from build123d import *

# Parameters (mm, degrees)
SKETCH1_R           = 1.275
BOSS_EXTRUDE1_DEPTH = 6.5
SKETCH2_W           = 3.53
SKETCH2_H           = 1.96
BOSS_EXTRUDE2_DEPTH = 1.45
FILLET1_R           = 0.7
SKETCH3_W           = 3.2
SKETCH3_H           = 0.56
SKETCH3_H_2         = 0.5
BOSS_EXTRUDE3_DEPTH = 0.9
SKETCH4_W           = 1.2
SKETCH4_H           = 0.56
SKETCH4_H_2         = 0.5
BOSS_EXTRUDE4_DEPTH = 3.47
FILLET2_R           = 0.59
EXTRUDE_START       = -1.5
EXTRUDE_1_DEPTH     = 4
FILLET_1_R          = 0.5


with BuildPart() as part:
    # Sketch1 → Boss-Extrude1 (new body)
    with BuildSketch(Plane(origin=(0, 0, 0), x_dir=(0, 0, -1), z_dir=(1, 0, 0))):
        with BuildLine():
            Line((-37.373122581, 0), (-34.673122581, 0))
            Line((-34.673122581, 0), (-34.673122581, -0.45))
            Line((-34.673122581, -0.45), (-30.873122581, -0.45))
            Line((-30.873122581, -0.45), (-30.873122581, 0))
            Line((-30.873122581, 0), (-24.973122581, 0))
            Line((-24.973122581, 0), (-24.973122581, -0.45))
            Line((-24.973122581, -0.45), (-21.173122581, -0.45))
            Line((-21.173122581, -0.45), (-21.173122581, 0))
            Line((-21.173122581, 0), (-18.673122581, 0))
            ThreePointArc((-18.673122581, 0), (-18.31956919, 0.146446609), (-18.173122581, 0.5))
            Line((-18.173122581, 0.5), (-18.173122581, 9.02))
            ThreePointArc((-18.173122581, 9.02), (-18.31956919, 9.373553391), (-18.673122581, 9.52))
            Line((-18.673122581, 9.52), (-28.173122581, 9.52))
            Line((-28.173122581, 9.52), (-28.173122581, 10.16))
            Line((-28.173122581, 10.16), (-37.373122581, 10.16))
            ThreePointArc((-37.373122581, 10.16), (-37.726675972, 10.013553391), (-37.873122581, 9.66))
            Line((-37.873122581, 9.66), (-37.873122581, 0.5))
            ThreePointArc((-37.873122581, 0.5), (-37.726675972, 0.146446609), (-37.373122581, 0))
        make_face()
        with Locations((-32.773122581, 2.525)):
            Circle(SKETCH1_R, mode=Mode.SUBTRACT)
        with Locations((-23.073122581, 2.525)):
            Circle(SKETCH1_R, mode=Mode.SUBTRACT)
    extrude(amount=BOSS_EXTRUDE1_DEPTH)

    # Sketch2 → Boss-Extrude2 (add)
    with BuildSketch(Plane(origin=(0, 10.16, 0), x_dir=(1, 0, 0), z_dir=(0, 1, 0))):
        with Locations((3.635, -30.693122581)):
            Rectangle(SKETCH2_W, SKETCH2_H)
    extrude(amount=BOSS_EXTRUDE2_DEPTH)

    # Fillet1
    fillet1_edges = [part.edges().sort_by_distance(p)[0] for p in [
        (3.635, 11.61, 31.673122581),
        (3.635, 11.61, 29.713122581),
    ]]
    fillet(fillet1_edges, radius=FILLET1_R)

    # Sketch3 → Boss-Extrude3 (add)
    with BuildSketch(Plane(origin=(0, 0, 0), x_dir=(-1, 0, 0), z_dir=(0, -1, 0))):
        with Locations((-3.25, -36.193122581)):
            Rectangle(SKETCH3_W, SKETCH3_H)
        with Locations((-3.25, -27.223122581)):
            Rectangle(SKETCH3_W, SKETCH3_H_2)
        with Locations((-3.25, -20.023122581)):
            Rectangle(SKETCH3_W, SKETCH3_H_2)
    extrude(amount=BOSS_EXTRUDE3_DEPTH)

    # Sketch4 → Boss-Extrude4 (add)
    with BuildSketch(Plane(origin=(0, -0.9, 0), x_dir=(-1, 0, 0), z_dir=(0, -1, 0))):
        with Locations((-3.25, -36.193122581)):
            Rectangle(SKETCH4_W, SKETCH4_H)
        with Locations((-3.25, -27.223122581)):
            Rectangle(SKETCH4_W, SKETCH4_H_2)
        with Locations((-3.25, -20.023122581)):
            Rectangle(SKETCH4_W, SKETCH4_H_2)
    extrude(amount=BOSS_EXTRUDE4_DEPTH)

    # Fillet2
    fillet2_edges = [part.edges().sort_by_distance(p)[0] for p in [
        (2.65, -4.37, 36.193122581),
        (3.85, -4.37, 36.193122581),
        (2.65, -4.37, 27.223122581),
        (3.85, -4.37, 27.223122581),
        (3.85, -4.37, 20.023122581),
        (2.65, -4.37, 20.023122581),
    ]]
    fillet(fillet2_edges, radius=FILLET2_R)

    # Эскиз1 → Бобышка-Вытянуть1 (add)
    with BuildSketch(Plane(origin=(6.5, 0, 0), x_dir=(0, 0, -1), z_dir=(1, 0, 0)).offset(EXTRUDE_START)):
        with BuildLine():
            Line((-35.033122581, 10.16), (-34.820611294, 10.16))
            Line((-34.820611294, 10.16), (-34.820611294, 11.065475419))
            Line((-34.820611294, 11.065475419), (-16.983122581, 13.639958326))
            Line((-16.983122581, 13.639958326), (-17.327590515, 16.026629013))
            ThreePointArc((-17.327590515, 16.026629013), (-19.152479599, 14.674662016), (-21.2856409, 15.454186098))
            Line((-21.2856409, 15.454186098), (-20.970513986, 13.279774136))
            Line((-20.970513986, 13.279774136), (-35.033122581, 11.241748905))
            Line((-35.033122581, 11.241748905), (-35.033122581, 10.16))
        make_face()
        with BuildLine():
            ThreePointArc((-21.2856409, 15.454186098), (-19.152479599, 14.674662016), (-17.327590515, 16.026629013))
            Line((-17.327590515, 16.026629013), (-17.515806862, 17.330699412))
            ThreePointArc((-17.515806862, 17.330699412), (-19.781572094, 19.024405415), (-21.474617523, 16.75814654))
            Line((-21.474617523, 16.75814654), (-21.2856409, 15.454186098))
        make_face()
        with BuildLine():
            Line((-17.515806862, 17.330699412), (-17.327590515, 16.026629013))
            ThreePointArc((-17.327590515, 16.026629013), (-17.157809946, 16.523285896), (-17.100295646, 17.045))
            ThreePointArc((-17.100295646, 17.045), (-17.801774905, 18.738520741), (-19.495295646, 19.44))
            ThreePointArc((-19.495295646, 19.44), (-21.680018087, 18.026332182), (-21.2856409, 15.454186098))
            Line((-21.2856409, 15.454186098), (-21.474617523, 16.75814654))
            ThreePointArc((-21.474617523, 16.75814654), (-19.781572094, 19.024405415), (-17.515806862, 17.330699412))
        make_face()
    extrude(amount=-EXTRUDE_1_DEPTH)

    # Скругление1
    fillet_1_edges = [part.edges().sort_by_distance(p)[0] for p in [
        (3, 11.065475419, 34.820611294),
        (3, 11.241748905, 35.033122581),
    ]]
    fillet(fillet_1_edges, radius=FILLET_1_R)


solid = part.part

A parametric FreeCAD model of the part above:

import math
import FreeCAD as App
import Part
import Sketcher
from FreeCAD import Vector


def edges_at(feature, points):
    """Names of the edges that pass closest to the given points."""
    edges = feature.Shape.Edges
    near = lambda p: min(range(len(edges)), key=lambda i: edges[i].distToShape(Part.Vertex(*p))[0])
    return sorted({f"Edge{near(p) + 1}" for p in points})

doc = App.newDocument("Part")
body = doc.addObject("PartDesign::Body", "Body")

sketch1 = body.newObject("Sketcher::SketchObject", "Sketch")
sketch1.AttachmentSupport = (doc.getObject("YZ_Plane"), [""])
sketch1.MapMode = "FlatFace"
sketch1.addGeometry([
    Part.LineSegment(Vector(0, 37.373123, 0), Vector(0, 34.673123, 0)),
    Part.LineSegment(Vector(0, 34.673123, 0), Vector(-0.45, 34.673123, 0)),
    Part.LineSegment(Vector(-0.45, 34.673123, 0), Vector(-0.45, 30.873123, 0)),
    Part.LineSegment(Vector(-0.45, 30.873123, 0), Vector(0, 30.873123, 0)),
    Part.LineSegment(Vector(0, 30.873123, 0), Vector(0, 24.973123, 0)),
    Part.LineSegment(Vector(0, 24.973123, 0), Vector(-0.45, 24.973123, 0)),
    Part.LineSegment(Vector(-0.45, 24.973123, 0), Vector(-0.45, 21.173123, 0)),
    Part.LineSegment(Vector(-0.45, 21.173123, 0), Vector(0, 21.173123, 0)),
    Part.LineSegment(Vector(0, 21.173123, 0), Vector(0, 18.673123, 0)),
    Part.ArcOfCircle(Part.Circle(Vector(0.5, 18.673123, 0), Vector(0, 0, 1), 0.5), math.radians(180), math.radians(270)),
    Part.LineSegment(Vector(0.5, 18.173123, 0), Vector(9.02, 18.173123, 0)),
    Part.ArcOfCircle(Part.Circle(Vector(9.02, 18.673123, 0), Vector(0, 0, 1), 0.5), math.radians(-90), math.radians(0)),
    Part.LineSegment(Vector(9.52, 18.673123, 0), Vector(9.52, 28.173123, 0)),
    Part.LineSegment(Vector(9.52, 28.173123, 0), Vector(10.16, 28.173123, 0)),
    Part.LineSegment(Vector(10.16, 28.173123, 0), Vector(10.16, 37.373123, 0)),
    Part.ArcOfCircle(Part.Circle(Vector(9.66, 37.373123, 0), Vector(0, 0, 1), 0.5), math.radians(0), math.radians(90)),
    Part.LineSegment(Vector(9.66, 37.873123, 0), Vector(0.5, 37.873123, 0)),
    Part.ArcOfCircle(Part.Circle(Vector(0.5, 37.373123, 0), Vector(0, 0, 1), 0.5), math.radians(90), math.radians(180)),
    Part.Circle(Vector(2.525, 32.773123, 0), Vector(0, 0, 1), 1.275),
    Part.Circle(Vector(2.525, 23.073123, 0), Vector(0, 0, 1), 1.275),
], False)
sketch1.addConstraint([
    Sketcher.Constraint("Coincident", 0, 2, 1, 1),
    Sketcher.Constraint("Coincident", 1, 2, 2, 1),
    Sketcher.Constraint("Coincident", 2, 2, 3, 1),
    Sketcher.Constraint("Coincident", 3, 2, 4, 1),
    Sketcher.Constraint("Coincident", 4, 2, 5, 1),
    Sketcher.Constraint("Coincident", 5, 2, 6, 1),
    Sketcher.Constraint("Coincident", 6, 2, 7, 1),
    Sketcher.Constraint("Coincident", 7, 2, 8, 1),
    Sketcher.Constraint("Tangent", 8, 2, 9, 1),
    Sketcher.Constraint("Tangent", 9, 2, 10, 1),
    Sketcher.Constraint("Tangent", 10, 2, 11, 1),
    Sketcher.Constraint("Tangent", 11, 2, 12, 1),
    Sketcher.Constraint("Coincident", 12, 2, 13, 1),
    Sketcher.Constraint("Coincident", 13, 2, 14, 1),
    Sketcher.Constraint("Tangent", 14, 2, 15, 1),
    Sketcher.Constraint("Tangent", 15, 2, 16, 1),
    Sketcher.Constraint("Tangent", 16, 2, 17, 1),
    Sketcher.Constraint("Tangent", 17, 2, 0, 1),
    Sketcher.Constraint("Vertical", 0),
    Sketcher.Constraint("Horizontal", 1),
    Sketcher.Constraint("Vertical", 2),
    Sketcher.Constraint("Horizontal", 3),
    Sketcher.Constraint("Vertical", 4),
    Sketcher.Constraint("Horizontal", 5),
    Sketcher.Constraint("Vertical", 6),
    Sketcher.Constraint("Horizontal", 7),
    Sketcher.Constraint("Vertical", 8),
    Sketcher.Constraint("Horizontal", 10),
    Sketcher.Constraint("Vertical", 12),
    Sketcher.Constraint("Horizontal", 13),
    Sketcher.Constraint("Vertical", 14),
    Sketcher.Constraint("Horizontal", 16),
    Sketcher.Constraint("Equal", 9, 11),
    Sketcher.Constraint("Equal", 11, 15),
    Sketcher.Constraint("Equal", 15, 17),
    Sketcher.Constraint("Equal", 18, 19),
    Sketcher.Constraint("PointOnObject", 0, 2, -2),
    Sketcher.Constraint("PointOnObject", 3, 2, -2),
    Sketcher.Constraint("PointOnObject", 7, 2, -2),
    Sketcher.Constraint("Vertical", 18, 3, 19, 3),
    Sketcher.Constraint("Vertical", 2, 2, 5, 2),
    Sketcher.Constraint("Equal", 2, 6),
    Sketcher.Constraint("Radius", 9, 0.5),
    Sketcher.Constraint("Diameter", 18, 2.55),
    Sketcher.Constraint("DistanceY", 0, 2, 0, 1, 2.7),
    Sketcher.Constraint("DistanceY", 2, 2, 2, 1, 3.8),
    Sketcher.Constraint("DistanceY", 4, 2, 4, 1, 5.9),
    Sketcher.Constraint("DistanceY", 8, 2, 8, 1, 2.5),
    Sketcher.Constraint("DistanceY", 12, 1, 12, 2, 9.5),
    Sketcher.Constraint("DistanceX", 1, 2, 1, 1, 0.45),
    Sketcher.Constraint("DistanceX", 10, 1, 10, 2, 8.52),
    Sketcher.Constraint("DistanceX", 13, 1, 13, 2, 0.64),
    Sketcher.Constraint("DistanceY", 18, 3, 17, 3, 4.6),
    Sketcher.Constraint("DistanceY", 9, 3, 19, 3, 4.4),
    Sketcher.Constraint("DistanceX", -1, 1, 18, 3, 2.525),
    Sketcher.Constraint("DistanceY", -1, 1, 9, 3, 18.673123),
])
pad1 = body.newObject("PartDesign::Pad", "Pad")
pad1.Profile = sketch1
pad1.Length = 6.5

sketch2 = body.newObject("Sketcher::SketchObject", "Sketch001")
sketch2.AttachmentSupport = (doc.getObject("XZ_Plane"), [""])
sketch2.MapMode = "FlatFace"
sketch2.AttachmentOffset = App.Placement(Vector(0, 0, -10.16), App.Rotation())
sketch2.addGeometry([
    Part.LineSegment(Vector(1.87, 29.713123, 0), Vector(1.87, 31.673123, 0)),
    Part.LineSegment(Vector(1.87, 31.673123, 0), Vector(5.4, 31.673123, 0)),
    Part.LineSegment(Vector(5.4, 31.673123, 0), Vector(5.4, 29.713123, 0)),
    Part.LineSegment(Vector(5.4, 29.713123, 0), Vector(1.87, 29.713123, 0)),
], False)
sketch2.addConstraint([
    Sketcher.Constraint("Coincident", 0, 2, 1, 1),
    Sketcher.Constraint("Coincident", 1, 2, 2, 1),
    Sketcher.Constraint("Coincident", 2, 2, 3, 1),
    Sketcher.Constraint("Coincident", 3, 2, 0, 1),
    Sketcher.Constraint("Vertical", 0),
    Sketcher.Constraint("Horizontal", 1),
    Sketcher.Constraint("Vertical", 2),
    Sketcher.Constraint("Horizontal", 3),
    Sketcher.Constraint("DistanceX", 1, 1, 1, 2, 3.53),
    Sketcher.Constraint("DistanceY", 0, 1, 0, 2, 1.96),
    Sketcher.Constraint("DistanceX", -1, 1, 1, 2, 5.4),
    Sketcher.Constraint("DistanceY", -1, 1, 0, 2, 31.673123),
])
pad2 = body.newObject("PartDesign::Pad", "Pad001")
pad2.Profile = sketch2
pad2.Length = 1.45
pad2.Reversed = True
doc.recompute()

fillet = body.newObject("PartDesign::Fillet", "Fillet")
fillet.Base = (pad2, edges_at(pad2, [(3.635, 11.61, 31.673), (3.635, 11.61, 29.713)]))
fillet.Radius = 0.7

sketch3 = body.newObject("Sketcher::SketchObject", "Sketch002")
sketch3.AttachmentSupport = (doc.getObject("XZ_Plane"), [""])
sketch3.MapMode = "FlatFace"
sketch3.addGeometry([
    Part.LineSegment(Vector(4.85, 35.913123, 0), Vector(4.85, 36.473123, 0)),
    Part.LineSegment(Vector(4.85, 36.473123, 0), Vector(1.65, 36.473123, 0)),
    Part.LineSegment(Vector(1.65, 36.473123, 0), Vector(1.65, 35.913123, 0)),
    Part.LineSegment(Vector(1.65, 35.913123, 0), Vector(4.85, 35.913123, 0)),
    Part.LineSegment(Vector(4.85, 26.973123, 0), Vector(4.85, 27.473123, 0)),
    Part.LineSegment(Vector(4.85, 27.473123, 0), Vector(1.65, 27.473123, 0)),
    Part.LineSegment(Vector(1.65, 27.473123, 0), Vector(1.65, 26.973123, 0)),
    Part.LineSegment(Vector(1.65, 26.973123, 0), Vector(4.85, 26.973123, 0)),
    Part.LineSegment(Vector(4.85, 19.773123, 0), Vector(4.85, 20.273123, 0)),
    Part.LineSegment(Vector(4.85, 20.273123, 0), Vector(1.65, 20.273123, 0)),
    Part.LineSegment(Vector(1.65, 20.273123, 0), Vector(1.65, 19.773123, 0)),
    Part.LineSegment(Vector(1.65, 19.773123, 0), Vector(4.85, 19.773123, 0)),
], False)
sketch3.addConstraint([
    Sketcher.Constraint("Coincident", 0, 2, 1, 1),
    Sketcher.Constraint("Coincident", 1, 2, 2, 1),
    Sketcher.Constraint("Coincident", 2, 2, 3, 1),
    Sketcher.Constraint("Coincident", 3, 2, 0, 1),
    Sketcher.Constraint("Coincident", 4, 2, 5, 1),
    Sketcher.Constraint("Coincident", 5, 2, 6, 1),
    Sketcher.Constraint("Coincident", 6, 2, 7, 1),
    Sketcher.Constraint("Coincident", 7, 2, 4, 1),
    Sketcher.Constraint("Coincident", 8, 2, 9, 1),
    Sketcher.Constraint("Coincident", 9, 2, 10, 1),
    Sketcher.Constraint("Coincident", 10, 2, 11, 1),
    Sketcher.Constraint("Coincident", 11, 2, 8, 1),
    Sketcher.Constraint("Vertical", 0),
    Sketcher.Constraint("Horizontal", 1),
    Sketcher.Constraint("Vertical", 2),
    Sketcher.Constraint("Horizontal", 3),
    Sketcher.Constraint("Vertical", 4),
    Sketcher.Constraint("Horizontal", 5),
    Sketcher.Constraint("Vertical", 6),
    Sketcher.Constraint("Horizontal", 7),
    Sketcher.Constraint("Vertical", 8),
    Sketcher.Constraint("Horizontal", 9),
    Sketcher.Constraint("Vertical", 10),
    Sketcher.Constraint("Horizontal", 11),
    Sketcher.Constraint("Vertical", 3, 2, 4, 2),
    Sketcher.Constraint("Vertical", 2, 2, 5, 2),
    Sketcher.Constraint("Vertical", 7, 2, 8, 2),
    Sketcher.Constraint("Vertical", 6, 2, 9, 2),
    Sketcher.Constraint("Equal", 6, 8),
    Sketcher.Constraint("DistanceX", 1, 2, 1, 1, 3.2),
    Sketcher.Constraint("DistanceY", 4, 1, 4, 2, 0.5),
    Sketcher.Constraint("DistanceY", 4, 2, 0, 2, 9.0),
    Sketcher.Constraint("DistanceY", 0, 1, 0, 2, 0.56),
    Sketcher.Constraint("DistanceY", 8, 2, 7, 2, 6.7),
    Sketcher.Constraint("DistanceX", -1, 1, 0, 2, 4.85),
    Sketcher.Constraint("DistanceY", -1, 1, 0, 2, 36.473123),
])
pad3 = body.newObject("PartDesign::Pad", "Pad002")
pad3.Profile = sketch3
pad3.Length = 0.9

sketch4 = body.newObject("Sketcher::SketchObject", "Sketch003")
sketch4.AttachmentSupport = (doc.getObject("XZ_Plane"), [""])
sketch4.MapMode = "FlatFace"
sketch4.AttachmentOffset = App.Placement(Vector(0, 0, 0.9), App.Rotation())
sketch4.addGeometry([
    Part.LineSegment(Vector(3.85, 35.913123, 0), Vector(3.85, 36.473123, 0)),
    Part.LineSegment(Vector(3.85, 36.473123, 0), Vector(2.65, 36.473123, 0)),
    Part.LineSegment(Vector(2.65, 36.473123, 0), Vector(2.65, 35.913123, 0)),
    Part.LineSegment(Vector(2.65, 35.913123, 0), Vector(3.85, 35.913123, 0)),
    Part.LineSegment(Vector(3.85, 26.973123, 0), Vector(3.85, 27.473123, 0)),
    Part.LineSegment(Vector(3.85, 27.473123, 0), Vector(2.65, 27.473123, 0)),
    Part.LineSegment(Vector(2.65, 27.473123, 0), Vector(2.65, 26.973123, 0)),
    Part.LineSegment(Vector(2.65, 26.973123, 0), Vector(3.85, 26.973123, 0)),
    Part.LineSegment(Vector(3.85, 19.773123, 0), Vector(3.85, 20.273123, 0)),
    Part.LineSegment(Vector(3.85, 20.273123, 0), Vector(2.65, 20.273123, 0)),
    Part.LineSegment(Vector(2.65, 20.273123, 0), Vector(2.65, 19.773123, 0)),
    Part.LineSegment(Vector(2.65, 19.773123, 0), Vector(3.85, 19.773123, 0)),
], False)
sketch4.addConstraint([
    Sketcher.Constraint("Coincident", 0, 2, 1, 1),
    Sketcher.Constraint("Coincident", 1, 2, 2, 1),
    Sketcher.Constraint("Coincident", 2, 2, 3, 1),
    Sketcher.Constraint("Coincident", 3, 2, 0, 1),
    Sketcher.Constraint("Coincident", 4, 2, 5, 1),
    Sketcher.Constraint("Coincident", 5, 2, 6, 1),
    Sketcher.Constraint("Coincident", 6, 2, 7, 1),
    Sketcher.Constraint("Coincident", 7, 2, 4, 1),
    Sketcher.Constraint("Coincident", 8, 2, 9, 1),
    Sketcher.Constraint("Coincident", 9, 2, 10, 1),
    Sketcher.Constraint("Coincident", 10, 2, 11, 1),
    Sketcher.Constraint("Coincident", 11, 2, 8, 1),
    Sketcher.Constraint("Vertical", 0),
    Sketcher.Constraint("Horizontal", 1),
    Sketcher.Constraint("Vertical", 2),
    Sketcher.Constraint("Horizontal", 3),
    Sketcher.Constraint("Vertical", 4),
    Sketcher.Constraint("Horizontal", 5),
    Sketcher.Constraint("Vertical", 6),
    Sketcher.Constraint("Horizontal", 7),
    Sketcher.Constraint("Vertical", 8),
    Sketcher.Constraint("Horizontal", 9),
    Sketcher.Constraint("Vertical", 10),
    Sketcher.Constraint("Horizontal", 11),
    Sketcher.Constraint("Vertical", 3, 2, 4, 2),
    Sketcher.Constraint("Vertical", 2, 2, 5, 2),
    Sketcher.Constraint("Vertical", 7, 2, 8, 2),
    Sketcher.Constraint("Vertical", 6, 2, 9, 2),
    Sketcher.Constraint("Equal", 6, 8),
    Sketcher.Constraint("DistanceX", 1, 2, 1, 1, 1.2),
    Sketcher.Constraint("DistanceY", 4, 1, 4, 2, 0.5),
    Sketcher.Constraint("DistanceY", 4, 2, 0, 2, 9.0),
    Sketcher.Constraint("DistanceY", 0, 1, 0, 2, 0.56),
    Sketcher.Constraint("DistanceY", 8, 2, 7, 2, 6.7),
    Sketcher.Constraint("DistanceX", -1, 1, 0, 2, 3.85),
    Sketcher.Constraint("DistanceY", -1, 1, 0, 2, 36.473123),
])
pad4 = body.newObject("PartDesign::Pad", "Pad003")
pad4.Profile = sketch4
pad4.Length = 3.47
doc.recompute()

fillet2 = body.newObject("PartDesign::Fillet", "Fillet001")
fillet2.Base = (pad4, edges_at(pad4, [
    (2.65, -4.37, 36.193),
    (3.85, -4.37, 36.193),
    (2.65, -4.37, 27.223),
    (3.85, -4.37, 27.223),
    (3.85, -4.37, 20.023),
    (2.65, -4.37, 20.023),
]))
fillet2.Radius = 0.59

sketch5 = body.newObject("Sketcher::SketchObject", "Sketch004")
sketch5.AttachmentSupport = (doc.getObject("YZ_Plane"), [""])
sketch5.MapMode = "FlatFace"
sketch5.AttachmentOffset = App.Placement(Vector(0, 0, 5), App.Rotation())
sketch5.addGeometry([
    Part.LineSegment(Vector(13.279774, 20.970514, 0), Vector(11.241749, 35.033123, 0)),
    Part.LineSegment(Vector(11.241749, 35.033123, 0), Vector(10.16, 35.033123, 0)),
    Part.LineSegment(Vector(10.16, 35.033123, 0), Vector(10.16, 34.820611, 0)),
    Part.LineSegment(Vector(10.16, 34.820611, 0), Vector(11.065475, 34.820611, 0)),
    Part.LineSegment(Vector(11.065475, 34.820611, 0), Vector(13.639958, 16.983123, 0)),
    Part.LineSegment(Vector(13.639958, 16.983123, 0), Vector(16.026629, 17.327591, 0)),
    Part.ArcOfCircle(Part.Circle(Vector(17.045, 19.495296, 0), Vector(0, 0, 1), 2.395), math.radians(-115.163773), math.radians(-90)),
    Part.ArcOfCircle(Part.Circle(Vector(17.045, 19.495296, 0), Vector(0, 0, 1), 2.395), math.radians(-90), math.radians(0)),
    Part.ArcOfCircle(Part.Circle(Vector(17.045, 19.495296, 0), Vector(0, 0, 1), 2.395), math.radians(0), math.radians(131.622738)),
    Part.LineSegment(Vector(15.454186, 21.285641, 0), Vector(13.279774, 20.970514, 0)),
], False)
sketch5.addConstraint([
    Sketcher.Constraint("Coincident", 0, 2, 1, 1),
    Sketcher.Constraint("Coincident", 1, 2, 2, 1),
    Sketcher.Constraint("Coincident", 2, 2, 3, 1),
    Sketcher.Constraint("Coincident", 3, 2, 4, 1),
    Sketcher.Constraint("Coincident", 4, 2, 5, 1),
    Sketcher.Constraint("Coincident", 5, 2, 6, 1),
    Sketcher.Constraint("Tangent", 6, 2, 7, 1),
    Sketcher.Constraint("Tangent", 7, 2, 8, 1),
    Sketcher.Constraint("Coincident", 8, 2, 9, 1),
    Sketcher.Constraint("Coincident", 9, 2, 0, 1),
    Sketcher.Constraint("Horizontal", 1),
    Sketcher.Constraint("Vertical", 2),
    Sketcher.Constraint("Horizontal", 3),
    Sketcher.Constraint("Coincident", 8, 3, 6, 3),
    Sketcher.Constraint("Perpendicular", 4, 5),
    Sketcher.Constraint("Perpendicular", 0, 9),
    Sketcher.Constraint("Horizontal", 8, 3, 7, 2),
    Sketcher.Constraint("Vertical", 8, 3, 6, 2),
    Sketcher.Constraint("Radius", 6, 2.395),
    Sketcher.Constraint("DistanceX", -1, 1, 1, 2, 10.16),
    Sketcher.Constraint("DistanceX", -1, 1, 7, 2, 19.44),
    Sketcher.Constraint("Distance", 5, 2.411401),
    Sketcher.Constraint("DistanceX", 1, 2, 1, 1, 1.081749),
    Sketcher.Constraint("DistanceY", 2, 2, 2, 1, 0.212511),
    Sketcher.Constraint("Distance", 0, 14.209522),
    Sketcher.Constraint("Distance", 4, 18.022319),
    Sketcher.Constraint("Distance", 9, 2.197128),
    Sketcher.Constraint("DistanceX", 3, 1, 3, 2, 0.905475),
    Sketcher.Constraint("DistanceY", -1, 1, 2, 2, 34.820611),
    Sketcher.Constraint("DistanceX", -1, 1, 4, 2, 13.639958),
])
pad5 = body.newObject("PartDesign::Pad", "Pad004")
pad5.Profile = sketch5
pad5.Length = 4
pad5.Reversed = True
doc.recompute()

fillet3 = body.newObject("PartDesign::Fillet", "Fillet002")
fillet3.Base = (pad5, edges_at(pad5, [(3, 11.065, 34.821), (3, 11.242, 35.033)]))
fillet3.Radius = 0.5

doc.recompute()
